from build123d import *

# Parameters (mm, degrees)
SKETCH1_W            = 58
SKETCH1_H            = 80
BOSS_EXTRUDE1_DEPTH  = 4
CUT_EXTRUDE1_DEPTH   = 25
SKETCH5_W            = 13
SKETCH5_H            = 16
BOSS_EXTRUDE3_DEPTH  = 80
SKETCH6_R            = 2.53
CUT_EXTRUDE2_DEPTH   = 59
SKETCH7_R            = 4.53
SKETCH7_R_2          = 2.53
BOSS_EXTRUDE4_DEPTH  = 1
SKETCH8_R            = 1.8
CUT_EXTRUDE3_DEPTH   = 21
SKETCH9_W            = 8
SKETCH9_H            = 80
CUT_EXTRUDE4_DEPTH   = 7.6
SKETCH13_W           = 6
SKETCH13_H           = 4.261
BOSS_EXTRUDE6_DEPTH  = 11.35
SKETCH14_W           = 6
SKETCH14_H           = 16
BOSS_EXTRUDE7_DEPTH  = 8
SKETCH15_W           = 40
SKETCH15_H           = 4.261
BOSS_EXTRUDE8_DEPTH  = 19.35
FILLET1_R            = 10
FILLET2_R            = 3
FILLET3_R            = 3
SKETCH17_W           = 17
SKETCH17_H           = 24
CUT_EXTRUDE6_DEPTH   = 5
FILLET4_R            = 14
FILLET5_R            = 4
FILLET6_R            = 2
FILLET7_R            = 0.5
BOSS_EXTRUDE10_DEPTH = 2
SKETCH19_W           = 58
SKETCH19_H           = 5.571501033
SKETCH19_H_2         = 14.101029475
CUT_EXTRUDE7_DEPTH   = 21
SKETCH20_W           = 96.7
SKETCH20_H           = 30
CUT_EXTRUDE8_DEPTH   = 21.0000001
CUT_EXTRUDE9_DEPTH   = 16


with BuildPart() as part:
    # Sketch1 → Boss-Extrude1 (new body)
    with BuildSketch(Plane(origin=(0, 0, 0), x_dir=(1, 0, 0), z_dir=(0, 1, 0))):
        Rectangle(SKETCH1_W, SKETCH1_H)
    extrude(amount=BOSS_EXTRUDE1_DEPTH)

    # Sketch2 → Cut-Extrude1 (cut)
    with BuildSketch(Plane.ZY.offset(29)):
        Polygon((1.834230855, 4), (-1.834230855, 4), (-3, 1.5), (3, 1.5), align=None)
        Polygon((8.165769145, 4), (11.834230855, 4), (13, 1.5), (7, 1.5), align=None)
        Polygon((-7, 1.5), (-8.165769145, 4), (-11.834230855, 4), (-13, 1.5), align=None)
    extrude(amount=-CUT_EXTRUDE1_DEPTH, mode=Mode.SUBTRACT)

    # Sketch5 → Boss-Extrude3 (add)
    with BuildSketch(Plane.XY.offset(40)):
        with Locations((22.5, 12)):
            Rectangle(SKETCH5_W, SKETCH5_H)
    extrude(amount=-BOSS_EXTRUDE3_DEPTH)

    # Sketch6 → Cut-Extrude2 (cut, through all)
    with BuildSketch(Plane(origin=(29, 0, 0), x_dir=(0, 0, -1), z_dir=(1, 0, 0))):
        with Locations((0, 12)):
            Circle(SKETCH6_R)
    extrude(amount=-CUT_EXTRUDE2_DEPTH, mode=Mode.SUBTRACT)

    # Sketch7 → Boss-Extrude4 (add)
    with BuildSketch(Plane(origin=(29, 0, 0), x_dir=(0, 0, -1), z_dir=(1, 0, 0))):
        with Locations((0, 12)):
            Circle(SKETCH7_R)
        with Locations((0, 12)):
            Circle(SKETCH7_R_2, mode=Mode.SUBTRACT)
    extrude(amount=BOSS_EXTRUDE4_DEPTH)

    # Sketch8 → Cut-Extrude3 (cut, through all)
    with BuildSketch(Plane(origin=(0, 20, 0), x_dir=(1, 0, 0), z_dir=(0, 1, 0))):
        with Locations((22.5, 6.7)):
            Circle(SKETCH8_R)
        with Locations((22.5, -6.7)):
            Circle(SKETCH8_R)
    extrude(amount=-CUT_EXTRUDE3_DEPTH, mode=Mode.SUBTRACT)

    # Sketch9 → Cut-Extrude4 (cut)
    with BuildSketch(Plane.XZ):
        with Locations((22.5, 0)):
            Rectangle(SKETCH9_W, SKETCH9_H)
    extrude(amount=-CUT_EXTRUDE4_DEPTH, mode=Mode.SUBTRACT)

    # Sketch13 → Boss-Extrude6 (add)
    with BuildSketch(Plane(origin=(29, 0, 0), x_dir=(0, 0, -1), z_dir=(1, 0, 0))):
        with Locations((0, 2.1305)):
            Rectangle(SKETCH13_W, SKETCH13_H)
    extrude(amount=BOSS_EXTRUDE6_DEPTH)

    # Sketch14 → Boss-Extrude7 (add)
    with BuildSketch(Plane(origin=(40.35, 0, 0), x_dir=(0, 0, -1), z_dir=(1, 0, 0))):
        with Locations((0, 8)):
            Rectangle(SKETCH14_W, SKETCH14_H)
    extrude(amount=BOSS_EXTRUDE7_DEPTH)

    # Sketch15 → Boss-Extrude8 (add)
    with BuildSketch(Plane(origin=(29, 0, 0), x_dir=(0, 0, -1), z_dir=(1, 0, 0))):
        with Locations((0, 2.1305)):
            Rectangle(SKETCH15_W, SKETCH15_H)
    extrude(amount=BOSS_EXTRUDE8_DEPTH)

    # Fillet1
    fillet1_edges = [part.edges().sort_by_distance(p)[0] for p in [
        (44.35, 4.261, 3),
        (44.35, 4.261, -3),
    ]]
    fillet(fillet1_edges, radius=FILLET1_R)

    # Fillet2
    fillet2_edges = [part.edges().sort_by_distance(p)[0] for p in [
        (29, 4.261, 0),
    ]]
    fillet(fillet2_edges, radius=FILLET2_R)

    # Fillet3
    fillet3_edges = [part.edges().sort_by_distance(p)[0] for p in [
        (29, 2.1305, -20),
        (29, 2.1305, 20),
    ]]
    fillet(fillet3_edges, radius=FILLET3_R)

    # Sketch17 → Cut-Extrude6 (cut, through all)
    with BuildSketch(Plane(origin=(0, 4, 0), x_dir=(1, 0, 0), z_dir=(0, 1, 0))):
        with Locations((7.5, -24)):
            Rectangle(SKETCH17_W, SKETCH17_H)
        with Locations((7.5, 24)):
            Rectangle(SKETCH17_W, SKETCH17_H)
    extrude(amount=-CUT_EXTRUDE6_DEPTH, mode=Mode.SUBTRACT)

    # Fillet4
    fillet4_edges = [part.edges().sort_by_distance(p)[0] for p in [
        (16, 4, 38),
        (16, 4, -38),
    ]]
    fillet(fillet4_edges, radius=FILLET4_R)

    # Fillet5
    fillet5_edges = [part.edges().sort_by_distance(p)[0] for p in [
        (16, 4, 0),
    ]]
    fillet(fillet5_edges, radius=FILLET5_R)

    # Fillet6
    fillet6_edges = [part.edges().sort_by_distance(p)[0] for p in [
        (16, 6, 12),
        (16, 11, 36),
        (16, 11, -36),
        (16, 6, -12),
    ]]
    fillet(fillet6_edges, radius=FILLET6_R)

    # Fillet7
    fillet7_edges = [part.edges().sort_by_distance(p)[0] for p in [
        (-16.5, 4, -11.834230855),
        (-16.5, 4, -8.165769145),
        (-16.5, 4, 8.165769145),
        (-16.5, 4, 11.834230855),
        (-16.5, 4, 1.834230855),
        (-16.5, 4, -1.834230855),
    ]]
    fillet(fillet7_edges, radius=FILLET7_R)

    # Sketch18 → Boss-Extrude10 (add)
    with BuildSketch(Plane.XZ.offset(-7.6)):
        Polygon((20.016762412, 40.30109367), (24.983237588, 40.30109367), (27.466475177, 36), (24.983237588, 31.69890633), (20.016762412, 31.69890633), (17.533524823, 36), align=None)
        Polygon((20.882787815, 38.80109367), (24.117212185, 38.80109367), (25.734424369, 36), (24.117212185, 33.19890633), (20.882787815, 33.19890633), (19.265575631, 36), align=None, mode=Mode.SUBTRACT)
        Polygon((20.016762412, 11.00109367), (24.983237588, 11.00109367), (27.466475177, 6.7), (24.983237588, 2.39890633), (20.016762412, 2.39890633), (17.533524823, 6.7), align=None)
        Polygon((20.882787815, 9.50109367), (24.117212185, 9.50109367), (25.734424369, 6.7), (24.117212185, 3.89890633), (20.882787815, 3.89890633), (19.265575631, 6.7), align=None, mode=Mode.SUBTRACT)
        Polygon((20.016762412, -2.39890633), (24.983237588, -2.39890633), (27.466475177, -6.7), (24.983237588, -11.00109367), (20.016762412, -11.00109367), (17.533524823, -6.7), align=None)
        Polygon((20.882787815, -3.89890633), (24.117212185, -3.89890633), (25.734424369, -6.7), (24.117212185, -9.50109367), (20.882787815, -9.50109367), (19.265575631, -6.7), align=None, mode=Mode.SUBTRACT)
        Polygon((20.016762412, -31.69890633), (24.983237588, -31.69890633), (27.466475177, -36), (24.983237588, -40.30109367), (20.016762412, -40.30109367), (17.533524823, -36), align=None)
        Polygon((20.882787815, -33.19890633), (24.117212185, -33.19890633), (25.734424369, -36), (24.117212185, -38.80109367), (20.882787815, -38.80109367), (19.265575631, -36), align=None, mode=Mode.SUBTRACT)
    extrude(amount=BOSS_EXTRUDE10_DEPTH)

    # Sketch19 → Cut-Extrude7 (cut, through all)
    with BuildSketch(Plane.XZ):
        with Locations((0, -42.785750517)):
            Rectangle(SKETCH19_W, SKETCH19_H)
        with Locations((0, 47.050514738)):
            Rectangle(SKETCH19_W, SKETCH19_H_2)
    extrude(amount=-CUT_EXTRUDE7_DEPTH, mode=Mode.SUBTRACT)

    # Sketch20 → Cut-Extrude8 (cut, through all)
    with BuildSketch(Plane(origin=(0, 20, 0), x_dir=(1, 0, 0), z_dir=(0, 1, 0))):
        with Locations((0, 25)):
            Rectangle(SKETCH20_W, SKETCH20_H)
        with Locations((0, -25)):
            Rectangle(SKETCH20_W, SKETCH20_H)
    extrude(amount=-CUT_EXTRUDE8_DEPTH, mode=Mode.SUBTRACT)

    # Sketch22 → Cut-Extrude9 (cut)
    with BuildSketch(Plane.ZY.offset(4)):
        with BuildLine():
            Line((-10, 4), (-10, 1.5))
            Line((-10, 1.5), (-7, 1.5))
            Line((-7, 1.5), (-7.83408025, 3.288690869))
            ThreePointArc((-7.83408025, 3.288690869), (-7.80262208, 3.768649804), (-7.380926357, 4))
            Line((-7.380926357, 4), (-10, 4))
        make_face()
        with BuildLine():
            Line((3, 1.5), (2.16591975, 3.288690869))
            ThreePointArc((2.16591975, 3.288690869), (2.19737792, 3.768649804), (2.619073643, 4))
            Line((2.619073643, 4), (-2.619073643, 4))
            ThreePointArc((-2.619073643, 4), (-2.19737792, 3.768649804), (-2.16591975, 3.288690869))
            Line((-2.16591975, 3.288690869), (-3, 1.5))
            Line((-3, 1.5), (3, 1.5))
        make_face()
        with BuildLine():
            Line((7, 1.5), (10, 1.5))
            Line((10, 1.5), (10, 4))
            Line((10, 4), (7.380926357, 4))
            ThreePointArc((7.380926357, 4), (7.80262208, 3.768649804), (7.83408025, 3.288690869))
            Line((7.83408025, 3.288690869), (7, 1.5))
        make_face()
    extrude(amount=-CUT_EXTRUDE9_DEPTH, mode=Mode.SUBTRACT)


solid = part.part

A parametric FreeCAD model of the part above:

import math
import FreeCAD as App
import Part
import Sketcher

V = App.Vector
Q = App.Units.Quantity


def edges_at(feature, points):
    """Names of the edges that pass closest to the given points."""
    edges = feature.Shape.Edges
    near = lambda p: min(range(len(edges)), key=lambda i: edges[i].distToShape(Part.Vertex(*p))[0])
    return sorted({f"Edge{near(p) + 1}" for p in points})

doc = App.newDocument("Part")
body = doc.addObject("PartDesign::Body", "Body")

# Sketch on XZ plane
sketch1 = doc.addObject("Sketcher::SketchObject", "Sketch")
body.addObject(sketch1)
sketch1.AttachmentSupport = (doc.XZ_Plane, [""])
sketch1.MapMode = "FlatFace"
sketch1.addGeometry(Part.LineSegment(V(-29, -40, 0), V(-29, 40, 0)), False)
sketch1.addGeometry(Part.LineSegment(V(-29, 40, 0), V(29, 40, 0)), False)
sketch1.addGeometry(Part.LineSegment(V(29, 40, 0), V(29, -40, 0)), False)
sketch1.addGeometry(Part.LineSegment(V(29, -40, 0), V(-29, -40, 0)), False)
sketch1.addConstraint(Sketcher.Constraint("Coincident", 0, 2, 1, 1))
sketch1.addConstraint(Sketcher.Constraint("Coincident", 1, 2, 2, 1))
sketch1.addConstraint(Sketcher.Constraint("Coincident", 2, 2, 3, 1))
sketch1.addConstraint(Sketcher.Constraint("Coincident", 3, 2, 0, 1))
sketch1.addConstraint(Sketcher.Constraint("Vertical", 0))
sketch1.addConstraint(Sketcher.Constraint("Horizontal", 1))
sketch1.addConstraint(Sketcher.Constraint("Vertical", 2))
sketch1.addConstraint(Sketcher.Constraint("Horizontal", 3))
sketch1.addConstraint(Sketcher.Constraint("Symmetric", 0, 2, 2, 2, -1, 1))
sketch1.addConstraint(Sketcher.Constraint("DistanceX", 1, 1, 1, 2, Q("58 mm")))
sketch1.addConstraint(Sketcher.Constraint("DistanceY", 0, 1, 0, 2, Q("80 mm")))
pad1 = doc.addObject("PartDesign::Pad", "Pad")
body.addObject(pad1)
pad1.Profile = sketch1
pad1.Length = 4
pad1.Reversed = True

# Sketch on YZ plane
sketch2 = doc.addObject("Sketcher::SketchObject", "Sketch001")
body.addObject(sketch2)
sketch2.AttachmentSupport = (doc.YZ_Plane, [""])
sketch2.MapMode = "FlatFace"
sketch2.AttachmentOffset = App.Placement(V(0, 0, -29), App.Rotation())
sketch2.addGeometry(Part.LineSegment(V(4, 1.8, 0), V(4, -1.8, 0)), False)
sketch2.addGeometry(Part.LineSegment(V(4, -1.8, 0), V(1.5, -3, 0)), False)
sketch2.addGeometry(Part.LineSegment(V(1.5, -3, 0), V(1.5, 3, 0)), False)
sketch2.addGeometry(Part.LineSegment(V(1.5, 3, 0), V(4, 1.8, 0)), False)
sketch2.addGeometry(Part.LineSegment(V(4, 11.8, 0), V(4, 8.2, 0)), False)
sketch2.addGeometry(Part.LineSegment(V(4, 8.2, 0), V(1.5, 7, 0)), False)
sketch2.addGeometry(Part.LineSegment(V(1.5, 7, 0), V(1.5, 13, 0)), False)
sketch2.addGeometry(Part.LineSegment(V(1.5, 13, 0), V(4, 11.8, 0)), False)
sketch2.addGeometry(Part.LineSegment(V(1.5, -7, 0), V(4, -8.2, 0)), False)
sketch2.addGeometry(Part.LineSegment(V(4, -8.2, 0), V(4, -11.8, 0)), False)
sketch2.addGeometry(Part.LineSegment(V(4, -11.8, 0), V(1.5, -13, 0)), False)
sketch2.addGeometry(Part.LineSegment(V(1.5, -13, 0), V(1.5, -7, 0)), False)
sketch2.addConstraint(Sketcher.Constraint("Coincident", 0, 2, 1, 1))
sketch2.addConstraint(Sketcher.Constraint("Coincident", 1, 2, 2, 1))
sketch2.addConstraint(Sketcher.Constraint("Coincident", 2, 2, 3, 1))
sketch2.addConstraint(Sketcher.Constraint("Coincident", 3, 2, 0, 1))
sketch2.addConstraint(Sketcher.Constraint("Coincident", 4, 2, 5, 1))
sketch2.addConstraint(Sketcher.Constraint("Coincident", 5, 2, 6, 1))
sketch2.addConstraint(Sketcher.Constraint("Coincident", 6, 2, 7, 1))
sketch2.addConstraint(Sketcher.Constraint("Coincident", 7, 2, 4, 1))
sketch2.addConstraint(Sketcher.Constraint("Coincident", 8, 2, 9, 1))
sketch2.addConstraint(Sketcher.Constraint("Coincident", 9, 2, 10, 1))
sketch2.addConstraint(Sketcher.Constraint("Coincident", 10, 2, 11, 1))
sketch2.addConstraint(Sketcher.Constraint("Coincident", 11, 2, 8, 1))
sketch2.addConstraint(Sketcher.Constraint("Vertical", 0))
sketch2.addConstraint(Sketcher.Constraint("Vertical", 2))
sketch2.addConstraint(Sketcher.Constraint("Vertical", 4))
sketch2.addConstraint(Sketcher.Constraint("Vertical", 6))
sketch2.addConstraint(Sketcher.Constraint("Vertical", 9))
sketch2.addConstraint(Sketcher.Constraint("Vertical", 11))
sketch2.addConstraint(Sketcher.Constraint("Symmetric", 4, 2, 8, 2, -1))
sketch2.addConstraint(Sketcher.Constraint("Symmetric", 6, 2, 10, 2, -1))
sketch2.addConstraint(Sketcher.Constraint("Parallel", 1, 5))
sketch2.addConstraint(Sketcher.Constraint("Parallel", 3, 7))
sketch2.addConstraint(Sketcher.Constraint("Parallel", 7, 8))
sketch2.addConstraint(Sketcher.Constraint("Parallel", 5, 10))
sketch2.addConstraint(Sketcher.Constraint("Vertical", 3, 2, 4, 2))
sketch2.addConstraint(Sketcher.Constraint("Vertical", 2, 2, 5, 2))
sketch2.addConstraint(Sketcher.Constraint("Equal", 0, 4))
sketch2.addConstraint(Sketcher.Constraint("Equal", 4, 9))
sketch2.addConstraint(Sketcher.Constraint("DistanceY", 2, 1, 2, 2, Q("6 mm")))
sketch2.addConstraint(Sketcher.Constraint("Angle", 1, Q("-155 deg")))
sketch2.addConstraint(Sketcher.Constraint("DistanceX", -1, 1, 0, 2, Q("4 mm")))
sketch2.addConstraint(Sketcher.Constraint("DistanceY", 1, 2, -1, 1, Q("3 mm")))
sketch2.addConstraint(Sketcher.Constraint("DistanceY", -1, 1, 5, 2, Q("7 mm")))
sketch2.addConstraint(Sketcher.Constraint("DistanceX", -1, 1, 1, 2, Q("1.5 mm")))
pocket1 = doc.addObject("PartDesign::Pocket", "Pocket")
body.addObject(pocket1)
pocket1.Profile = sketch2
pocket1.Length = 25
pocket1.Reversed = True

# Sketch on XY plane
sketch3 = doc.addObject("Sketcher::SketchObject", "Sketch002")
body.addObject(sketch3)
sketch3.AttachmentSupport = (doc.XY_Plane, [""])
sketch3.MapMode = "FlatFace"
sketch3.AttachmentOffset = App.Placement(V(0, 0, 40), App.Rotation())
sketch3.addGeometry(Part.LineSegment(V(16, 20, 0), V(16, 4, 0)), False)
sketch3.addGeometry(Part.LineSegment(V(16, 4, 0), V(29, 4, 0)), False)
sketch3.addGeometry(Part.LineSegment(V(29, 4, 0), V(29, 20, 0)), False)
sketch3.addGeometry(Part.LineSegment(V(29, 20, 0), V(16, 20, 0)), False)
sketch3.addConstraint(Sketcher.Constraint("Coincident", 0, 2, 1, 1))
sketch3.addConstraint(Sketcher.Constraint("Coincident", 1, 2, 2, 1))
sketch3.addConstraint(Sketcher.Constraint("Coincident", 2, 2, 3, 1))
sketch3.addConstraint(Sketcher.Constraint("Coincident", 3, 2, 0, 1))
sketch3.addConstraint(Sketcher.Constraint("Vertical", 0))
sketch3.addConstraint(Sketcher.Constraint("Horizontal", 1))
sketch3.addConstraint(Sketcher.Constraint("Vertical", 2))
sketch3.addConstraint(Sketcher.Constraint("Horizontal", 3))
sketch3.addConstraint(Sketcher.Constraint("DistanceX", 1, 1, 1, 2, Q("13 mm")))
sketch3.addConstraint(Sketcher.Constraint("DistanceY", 0, 2, 0, 1, Q("16 mm")))
sketch3.addConstraint(Sketcher.Constraint("DistanceX", -1, 1, 0, 2, Q("16 mm")))
sketch3.addConstraint(Sketcher.Constraint("DistanceY", -1, 1, 0, 2, Q("4 mm")))
pad2 = doc.addObject("PartDesign::Pad", "Pad001")
body.addObject(pad2)
pad2.Profile = sketch3
pad2.Length = 80
pad2.Reversed = True

# Sketch on YZ plane
sketch4 = doc.addObject("Sketcher::SketchObject", "Sketch003")
body.addObject(sketch4)
sketch4.AttachmentSupport = (doc.YZ_Plane, [""])
sketch4.MapMode = "FlatFace"
sketch4.AttachmentOffset = App.Placement(V(0, 0, 29), App.Rotation())
sketch4.addGeometry(Part.Circle(V(12, 0, 0), V(0, 0, 1), 2.5), False)
sketch4.addConstraint(Sketcher.Constraint("PointOnObject", 0, 3, -1))
sketch4.addConstraint(Sketcher.Constraint("Diameter", 0, Q("5.06 mm")))
sketch4.addConstraint(Sketcher.Constraint("DistanceX", -1, 1, 0, 3, Q("12 mm")))
pocket2 = doc.addObject("PartDesign::Pocket", "Pocket001")
body.addObject(pocket2)
pocket2.Profile = sketch4
pocket2.Type = "ThroughAll"

# Sketch on YZ plane
sketch5 = doc.addObject("Sketcher::SketchObject", "Sketch004")
body.addObject(sketch5)
sketch5.AttachmentSupport = (doc.YZ_Plane, [""])
sketch5.MapMode = "FlatFace"
sketch5.AttachmentOffset = App.Placement(V(0, 0, 29), App.Rotation())
sketch5.addGeometry(Part.Circle(V(12, 0, 0), V(0, 0, 1), 4.5), False)
sketch5.addGeometry(Part.Circle(V(12, 0, 0), V(0, 0, 1), 2.5), False)
sketch5.addConstraint(Sketcher.Constraint("Coincident", 1, 3, 0, 3))
sketch5.addConstraint(Sketcher.Constraint("PointOnObject", 0, 3, -1))
sketch5.addConstraint(Sketcher.Constraint("Diameter", 0, Q("9.06 mm")))
sketch5.addConstraint(Sketcher.Constraint("Diameter", 1, Q("5.06 mm")))
sketch5.addConstraint(Sketcher.Constraint("DistanceX", -1, 1, 0, 3, Q("12 mm")))
pad3 = doc.addObject("PartDesign::Pad", "Pad002")
body.addObject(pad3)
pad3.Profile = sketch5
pad3.Length = 1

# Sketch on XZ plane
sketch6 = doc.addObject("Sketcher::SketchObject", "Sketch005")
body.addObject(sketch6)
sketch6.AttachmentSupport = (doc.XZ_Plane, [""])
sketch6.MapMode = "FlatFace"
sketch6.AttachmentOffset = App.Placement(V(0, 0, -20), App.Rotation())
sketch6.addGeometry(Part.Circle(V(22.5, -6.7, 0), V(0, 0, 1), 1.8), False)
sketch6.addGeometry(Part.Circle(V(22.5, 6.7, 0), V(0, 0, 1), 1.8), False)
sketch6.addConstraint(Sketcher.Constraint("Equal", 0, 1))
sketch6.addConstraint(Sketcher.Constraint("Symmetric", 0, 3, 1, 3, -1))
sketch6.addConstraint(Sketcher.Constraint("Diameter", 0, Q("3.6 mm")))
sketch6.addConstraint(Sketcher.Constraint("DistanceX", -1, 1, 0, 3, Q("22.5 mm")))
sketch6.addConstraint(Sketcher.Constraint("DistanceY", 0, 3, -1, 1, Q("6.7 mm")))
pocket3 = doc.addObject("PartDesign::Pocket", "Pocket002")
body.addObject(pocket3)
pocket3.Profile = sketch6
pocket3.Type = "ThroughAll"
pocket3.Reversed = True

# Sketch on XZ plane
sketch7 = doc.addObject("Sketcher::SketchObject", "Sketch006")
body.addObject(sketch7)
sketch7.AttachmentSupport = (doc.XZ_Plane, [""])
sketch7.MapMode = "FlatFace"
sketch7.addGeometry(Part.LineSegment(V(18, 40, 0), V(18, -40, 0)), False)
sketch7.addGeometry(Part.LineSegment(V(18, -40, 0), V(26, -40, 0)), False)
sketch7.addGeometry(Part.LineSegment(V(26, -40, 0), V(26, 40, 0)), False)
sketch7.addGeometry(Part.LineSegment(V(26, 40, 0), V(18, 40, 0)), False)
sketch7.addConstraint(Sketcher.Constraint("Coincident", 0, 2, 1, 1))
sketch7.addConstraint(Sketcher.Constraint("Coincident", 1, 2, 2, 1))
sketch7.addConstraint(Sketcher.Constraint("Coincident", 2, 2, 3, 1))
sketch7.addConstraint(Sketcher.Constraint("Coincident", 3, 2, 0, 1))
sketch7.addConstraint(Sketcher.Constraint("Vertical", 0))
sketch7.addConstraint(Sketcher.Constraint("Horizontal", 1))
sketch7.addConstraint(Sketcher.Constraint("Vertical", 2))
sketch7.addConstraint(Sketcher.Constraint("Horizontal", 3))
sketch7.addConstraint(Sketcher.Constraint("DistanceX", 1, 1, 1, 2, Q("8 mm")))
sketch7.addConstraint(Sketcher.Constraint("DistanceY", 0, 2, 0, 1, Q("80 mm")))
sketch7.addConstraint(Sketcher.Constraint("DistanceY", 0, 2, -1, 1, Q("40 mm")))
sketch7.addConstraint(Sketcher.Constraint("DistanceX", -1, 1, 0, 2, Q("18.5 mm")))
pocket4 = doc.addObject("PartDesign::Pocket", "Pocket003")
body.addObject(pocket4)
pocket4.Profile = sketch7
pocket4.Length = 7.6

# Sketch on YZ plane
sketch8 = doc.addObject("Sketcher::SketchObject", "Sketch007")
body.addObject(sketch8)
sketch8.AttachmentSupport = (doc.YZ_Plane, [""])
sketch8.MapMode = "FlatFace"
sketch8.AttachmentOffset = App.Placement(V(0, 0, 29), App.Rotation())
sketch8.addGeometry(Part.LineSegment(V(4.3, 3, 0), V(0, 3, 0)), False)
sketch8.addGeometry(Part.LineSegment(V(0, 3, 0), V(0, -3, 0)), False)
sketch8.addGeometry(Part.LineSegment(V(0, -3, 0), V(4.3, -3, 0)), False)
sketch8.addGeometry(Part.LineSegment(V(4.3, -3, 0), V(4.3, 3, 0)), False)
sketch8.addConstraint(Sketcher.Constraint("Coincident", 0, 2, 1, 1))
sketch8.addConstraint(Sketcher.Constraint("Coincident", 1, 2, 2, 1))
sketch8.addConstraint(Sketcher.Constraint("Coincident", 2, 2, 3, 1))
sketch8.addConstraint(Sketcher.Constraint("Coincident", 3, 2, 0, 1))
sketch8.addConstraint(Sketcher.Constraint("Horizontal", 0))
sketch8.addConstraint(Sketcher.Constraint("Vertical", 1))
sketch8.addConstraint(Sketcher.Constraint("Horizontal", 2))
sketch8.addConstraint(Sketcher.Constraint("Vertical", 3))
sketch8.addConstraint(Sketcher.Constraint("Symmetric", 0, 2, 1, 2, -1, 1))
sketch8.addConstraint(Sketcher.Constraint("DistanceY", 1, 2, 1, 1, Q("6 mm")))
sketch8.addConstraint(Sketcher.Constraint("DistanceX", 0, 2, 0, 1, Q("4.261 mm")))
pad4 = doc.addObject("PartDesign::Pad", "Pad003")
body.addObject(pad4)
pad4.Profile = sketch8
pad4.Length = 11.35

# Sketch on YZ plane
sketch9 = doc.addObject("Sketcher::SketchObject", "Sketch008")
body.addObject(sketch9)
sketch9.AttachmentSupport = (doc.YZ_Plane, [""])
sketch9.MapMode = "FlatFace"
sketch9.AttachmentOffset = App.Placement(V(0, 0, 40.35), App.Rotation())
sketch9.addGeometry(Part.LineSegment(V(16, 3, 0), V(0, 3, 0)), False)
sketch9.addGeometry(Part.LineSegment(V(0, 3, 0), V(0, -3, 0)), False)
sketch9.addGeometry(Part.LineSegment(V(0, -3, 0), V(16, -3, 0)), False)
sketch9.addGeometry(Part.LineSegment(V(16, -3, 0), V(16, 3, 0)), False)
sketch9.addConstraint(Sketcher.Constraint("Coincident", 0, 2, 1, 1))
sketch9.addConstraint(Sketcher.Constraint("Coincident", 1, 2, 2, 1))
sketch9.addConstraint(Sketcher.Constraint("Coincident", 2, 2, 3, 1))
sketch9.addConstraint(Sketcher.Constraint("Coincident", 3, 2, 0, 1))
sketch9.addConstraint(Sketcher.Constraint("Horizontal", 0))
sketch9.addConstraint(Sketcher.Constraint("Vertical", 1))
sketch9.addConstraint(Sketcher.Constraint("Horizontal", 2))
sketch9.addConstraint(Sketcher.Constraint("Vertical", 3))
sketch9.addConstraint(Sketcher.Constraint("Symmetric", 0, 2, 1, 2, -1, 1))
sketch9.addConstraint(Sketcher.Constraint("DistanceX", 0, 2, 0, 1, Q("16 mm")))
sketch9.addConstraint(Sketcher.Constraint("DistanceY", 1, 2, 1, 1, Q("6 mm")))
pad5 = doc.addObject("PartDesign::Pad", "Pad004")
body.addObject(pad5)
pad5.Profile = sketch9
pad5.Length = 8

# Sketch on YZ plane
sketch10 = doc.addObject("Sketcher::SketchObject", "Sketch009")
body.addObject(sketch10)
sketch10.AttachmentSupport = (doc.YZ_Plane, [""])
sketch10.MapMode = "FlatFace"
sketch10.AttachmentOffset = App.Placement(V(0, 0, 29), App.Rotation())
sketch10.addGeometry(Part.LineSegment(V(4.3, 20, 0), V(0, 20, 0)), False)
sketch10.addGeometry(Part.LineSegment(V(0, 20, 0), V(0, -20, 0)), False)
sketch10.addGeometry(Part.LineSegment(V(0, -20, 0), V(4.3, -20, 0)), False)
sketch10.addGeometry(Part.LineSegment(V(4.3, -20, 0), V(4.3, 20, 0)), False)
sketch10.addConstraint(Sketcher.Constraint("Coincident", 0, 2, 1, 1))
sketch10.addConstraint(Sketcher.Constraint("Coincident", 1, 2, 2, 1))
sketch10.addConstraint(Sketcher.Constraint("Coincident", 2, 2, 3, 1))
sketch10.addConstraint(Sketcher.Constraint("Coincident", 3, 2, 0, 1))
sketch10.addConstraint(Sketcher.Constraint("Horizontal", 0))
sketch10.addConstraint(Sketcher.Constraint("Vertical", 1))
sketch10.addConstraint(Sketcher.Constraint("Horizontal", 2))
sketch10.addConstraint(Sketcher.Constraint("Vertical", 3))
sketch10.addConstraint(Sketcher.Constraint("Symmetric", 0, 2, 1, 2, -1, 1))
sketch10.addConstraint(Sketcher.Constraint("DistanceY", 1, 2, 1, 1, Q("40 mm")))
sketch10.addConstraint(Sketcher.Constraint("DistanceX", 0, 2, 0, 1, Q("4.261 mm")))
pad6 = doc.addObject("PartDesign::Pad", "Pad005")
body.addObject(pad6)
pad6.Profile = sketch10
pad6.Length = 19.35
doc.recompute()

fillet = doc.addObject("PartDesign::Fillet", "Fillet")
body.addObject(fillet)
fillet.Base = (pad6, edges_at(pad6, [(44.35, 4.261, 3), (44.35, 4.261, -3)]))
fillet.Radius = 10
doc.recompute()

fillet2 = doc.addObject("PartDesign::Fillet", "Fillet001")
body.addObject(fillet2)
fillet2.Base = (fillet, edges_at(fillet, [(29, 4.261, 0)]))
fillet2.Radius = 3
doc.recompute()

fillet3 = doc.addObject("PartDesign::Fillet", "Fillet002")
body.addObject(fillet3)
fillet3.Base = (fillet2, edges_at(fillet2, [(29, 3.631, -20), (29, 3.631, 20)]))
fillet3.Radius = 3

# Sketch on XZ plane
sketch11 = doc.addObject("Sketcher::SketchObject", "Sketch010")
body.addObject(sketch11)
sketch11.AttachmentSupport = (doc.XZ_Plane, [""])
sketch11.MapMode = "FlatFace"
sketch11.AttachmentOffset = App.Placement(V(0, 0, -4), App.Rotation())
sketch11.addGeometry(Part.LineSegment(V(-1, 12, 0), V(-1, 36, 0)), False)
sketch11.addGeometry(Part.LineSegment(V(-1, 36, 0), V(16, 36, 0)), False)
sketch11.addGeometry(Part.LineSegment(V(16, 36, 0), V(16, 12, 0)), False)
sketch11.addGeometry(Part.LineSegment(V(16, 12, 0), V(-1, 12, 0)), False)
sketch11.addGeometry(Part.LineSegment(V(-1, -36, 0), V(-1, -12, 0)), False)
sketch11.addGeometry(Part.LineSegment(V(-1, -12, 0), V(16, -12, 0)), False)
sketch11.addGeometry(Part.LineSegment(V(16, -12, 0), V(16, -36, 0)), False)
sketch11.addGeometry(Part.LineSegment(V(16, -36, 0), V(-1, -36, 0)), False)
sketch11.addConstraint(Sketcher.Constraint("Coincident", 0, 2, 1, 1))
sketch11.addConstraint(Sketcher.Constraint("Coincident", 1, 2, 2, 1))
sketch11.addConstraint(Sketcher.Constraint("Coincident", 2, 2, 3, 1))
sketch11.addConstraint(Sketcher.Constraint("Coincident", 3, 2, 0, 1))
sketch11.addConstraint(Sketcher.Constraint("Coincident", 4, 2, 5, 1))
sketch11.addConstraint(Sketcher.Constraint("Coincident", 5, 2, 6, 1))
sketch11.addConstraint(Sketcher.Constraint("Coincident", 6, 2, 7, 1))
sketch11.addConstraint(Sketcher.Constraint("Coincident", 7, 2, 4, 1))
sketch11.addConstraint(Sketcher.Constraint("Vertical", 0))
sketch11.addConstraint(Sketcher.Constraint("Horizontal", 1))
sketch11.addConstraint(Sketcher.Constraint("Vertical", 2))
sketch11.addConstraint(Sketcher.Constraint("Horizontal", 3))
sketch11.addConstraint(Sketcher.Constraint("Vertical", 4))
sketch11.addConstraint(Sketcher.Constraint("Horizontal", 5))
sketch11.addConstraint(Sketcher.Constraint("Vertical", 6))
sketch11.addConstraint(Sketcher.Constraint("Horizontal", 7))
sketch11.addConstraint(Sketcher.Constraint("Symmetric", 3, 2, 4, 2, -1))
sketch11.addConstraint(Sketcher.Constraint("Symmetric", 1, 2, 6, 2, -1))
sketch11.addConstraint(Sketcher.Constraint("DistanceX", 1, 1, 1, 2, Q("17 mm")))
sketch11.addConstraint(Sketcher.Constraint("DistanceY", 0, 1, 0, 2, Q("24 mm")))
sketch11.addConstraint(Sketcher.Constraint("DistanceX", 0, 2, -1, 1, Q("1 mm")))
sketch11.addConstraint(Sketcher.Constraint("DistanceY", -1, 1, 0, 2, Q("36 mm")))
pocket5 = doc.addObject("PartDesign::Pocket", "Pocket004")
body.addObject(pocket5)
pocket5.Profile = sketch11
pocket5.Type = "ThroughAll"
pocket5.Reversed = True
doc.recompute()

fillet4 = doc.addObject("PartDesign::Fillet", "Fillet003")
body.addObject(fillet4)
fillet4.Base = (pocket5, edges_at(pocket5, [(16, 4, 38), (16, 4, -38)]))
fillet4.Radius = 14
doc.recompute()

fillet5 = doc.addObject("PartDesign::Fillet", "Fillet004")
body.addObject(fillet5)
fillet5.Base = (fillet4, edges_at(fillet4, [(16, 4, 0)]))
fillet5.Radius = 4
doc.recompute()

fillet6 = doc.addObject("PartDesign::Fillet", "Fillet005")
body.addObject(fillet6)
fillet6.Base = (fillet5, edges_at(fillet5, [
    (16, 4, 12),
    (16, 9, 36),
    (16, 9, -36),
    (16, 4, -12),
]))
fillet6.Radius = 2
doc.recompute()

fillet7 = doc.addObject("PartDesign::Fillet", "Fillet006")
body.addObject(fillet7)
fillet7.Base = (fillet6, edges_at(fillet6, [
    (-16.5, 4, -11.834),
    (-16.5, 4, -8.166),
    (-16.5, 4, 8.166),
    (-16.5, 4, 11.834),
    (-16.5, 4, 1.834),
    (-16.5, 4, -1.834),
]))
fillet7.Radius = 0.5

# Sketch on XZ plane
sketch12 = doc.addObject("Sketcher::SketchObject", "Sketch011")
body.addObject(sketch12)
sketch12.AttachmentSupport = (doc.XZ_Plane, [""])
sketch12.MapMode = "FlatFace"
sketch12.AttachmentOffset = App.Placement(V(0, 0, -7.6), App.Rotation())
sketch12.addGeometry(Part.LineSegment(V(25, 40.3, 0), V(20, 40.3, 0)), False)
sketch12.addGeometry(Part.LineSegment(V(20, 40.3, 0), V(17.5, 36, 0)), False)
sketch12.addGeometry(Part.LineSegment(V(17.5, 36, 0), V(20, 31.7, 0)), False)
sketch12.addGeometry(Part.LineSegment(V(20, 31.7, 0), V(25, 31.7, 0)), False)
sketch12.addGeometry(Part.LineSegment(V(25, 31.7, 0), V(27.5, 36, 0)), False)
sketch12.addGeometry(Part.LineSegment(V(27.5, 36, 0), V(25, 40.3, 0)), False)
sketch12.addGeometry(Part.LineSegment(V(20.9, 38.8, 0), V(24.1, 38.8, 0)), False)
sketch12.addGeometry(Part.LineSegment(V(24.1, 38.8, 0), V(25.7, 36, 0)), False)
sketch12.addGeometry(Part.LineSegment(V(25.7, 36, 0), V(24.1, 33.2, 0)), False)
sketch12.addGeometry(Part.LineSegment(V(24.1, 33.2, 0), V(20.9, 33.2, 0)), False)
sketch12.addGeometry(Part.LineSegment(V(20.9, 33.2, 0), V(19.3, 36, 0)), False)
sketch12.addGeometry(Part.LineSegment(V(19.3, 36, 0), V(20.9, 38.8, 0)), False)
sketch12.addGeometry(Part.LineSegment(V(25, 11, 0), V(20, 11, 0)), False)
sketch12.addGeometry(Part.LineSegment(V(20, 11, 0), V(17.5, 6.7, 0)), False)
sketch12.addGeometry(Part.LineSegment(V(17.5, 6.7, 0), V(20, 2.4, 0)), False)
sketch12.addGeometry(Part.LineSegment(V(20, 2.4, 0), V(25, 2.4, 0)), False)
sketch12.addGeometry(Part.LineSegment(V(25, 2.4, 0), V(27.5, 6.7, 0)), False)
sketch12.addGeometry(Part.LineSegment(V(27.5, 6.7, 0), V(25, 11, 0)), False)
sketch12.addGeometry(Part.LineSegment(V(20.9, 9.5, 0), V(24.1, 9.5, 0)), False)
sketch12.addGeometry(Part.LineSegment(V(24.1, 9.5, 0), V(25.7, 6.7, 0)), False)
sketch12.addGeometry(Part.LineSegment(V(25.7, 6.7, 0), V(24.1, 3.9, 0)), False)
sketch12.addGeometry(Part.LineSegment(V(24.1, 3.9, 0), V(20.9, 3.9, 0)), False)
sketch12.addGeometry(Part.LineSegment(V(20.9, 3.9, 0), V(19.3, 6.7, 0)), False)
sketch12.addGeometry(Part.LineSegment(V(19.3, 6.7, 0), V(20.9, 9.5, 0)), False)
sketch12.addGeometry(Part.LineSegment(V(25, -2.4, 0), V(20, -2.4, 0)), False)
sketch12.addGeometry(Part.LineSegment(V(20, -2.4, 0), V(17.5, -6.7, 0)), False)
sketch12.addGeometry(Part.LineSegment(V(17.5, -6.7, 0), V(20, -11, 0)), False)
sketch12.addGeometry(Part.LineSegment(V(20, -11, 0), V(25, -11, 0)), False)
sketch12.addGeometry(Part.LineSegment(V(25, -11, 0), V(27.5, -6.7, 0)), False)
sketch12.addGeometry(Part.LineSegment(V(27.5, -6.7, 0), V(25, -2.4, 0)), False)
sketch12.addGeometry(Part.LineSegment(V(20.9, -3.9, 0), V(24.1, -3.9, 0)), False)
sketch12.addGeometry(Part.LineSegment(V(24.1, -3.9, 0), V(25.7, -6.7, 0)), False)
sketch12.addGeometry(Part.LineSegment(V(25.7, -6.7, 0), V(24.1, -9.5, 0)), False)
sketch12.addGeometry(Part.LineSegment(V(24.1, -9.5, 0), V(20.9, -9.5, 0)), False)
sketch12.addGeometry(Part.LineSegment(V(20.9, -9.5, 0), V(19.3, -6.7, 0)), False)
sketch12.addGeometry(Part.LineSegment(V(19.3, -6.7, 0), V(20.9, -3.9, 0)), False)
sketch12.addGeometry(Part.LineSegment(V(25, -31.7, 0), V(20, -31.7, 0)), False)
sketch12.addGeometry(Part.LineSegment(V(20, -31.7, 0), V(17.5, -36, 0)), False)
sketch12.addGeometry(Part.LineSegment(V(17.5, -36, 0), V(20, -40.3, 0)), False)
sketch12.addGeometry(Part.LineSegment(V(20, -40.3, 0), V(25, -40.3, 0)), False)
sketch12.addGeometry(Part.LineSegment(V(25, -40.3, 0), V(27.5, -36, 0)), False)
sketch12.addGeometry(Part.LineSegment(V(27.5, -36, 0), V(25, -31.7, 0)), False)
sketch12.addGeometry(Part.LineSegment(V(20.9, -33.2, 0), V(24.1, -33.2, 0)), False)
sketch12.addGeometry(Part.LineSegment(V(24.1, -33.2, 0), V(25.7, -36, 0)), False)
sketch12.addGeometry(Part.LineSegment(V(25.7, -36, 0), V(24.1, -38.8, 0)), False)
sketch12.addGeometry(Part.LineSegment(V(24.1, -38.8, 0), V(20.9, -38.8, 0)), False)
sketch12.addGeometry(Part.LineSegment(V(20.9, -38.8, 0), V(19.3, -36, 0)), False)
sketch12.addGeometry(Part.LineSegment(V(19.3, -36, 0), V(20.9, -33.2, 0)), False)
sketch12.addConstraint(Sketcher.Constraint("Coincident", 0, 2, 1, 1))
sketch12.addConstraint(Sketcher.Constraint("Coincident", 1, 2, 2, 1))
sketch12.addConstraint(Sketcher.Constraint("Coincident", 2, 2, 3, 1))
sketch12.addConstraint(Sketcher.Constraint("Coincident", 3, 2, 4, 1))
sketch12.addConstraint(Sketcher.Constraint("Coincident", 4, 2, 5, 1))
sketch12.addConstraint(Sketcher.Constraint("Coincident", 5, 2, 0, 1))
sketch12.addConstraint(Sketcher.Constraint("Coincident", 6, 2, 7, 1))
sketch12.addConstraint(Sketcher.Constraint("Coincident", 7, 2, 8, 1))
sketch12.addConstraint(Sketcher.Constraint("Coincident", 8, 2, 9, 1))
sketch12.addConstraint(Sketcher.Constraint("Coincident", 9, 2, 10, 1))
sketch12.addConstraint(Sketcher.Constraint("Coincident", 10, 2, 11, 1))
sketch12.addConstraint(Sketcher.Constraint("Coincident", 11, 2, 6, 1))
sketch12.addConstraint(Sketcher.Constraint("Coincident", 12, 2, 13, 1))
sketch12.addConstraint(Sketcher.Constraint("Coincident", 13, 2, 14, 1))
sketch12.addConstraint(Sketcher.Constraint("Coincident", 14, 2, 15, 1))
sketch12.addConstraint(Sketcher.Constraint("Coincident", 15, 2, 16, 1))
sketch12.addConstraint(Sketcher.Constraint("Coincident", 16, 2, 17, 1))
sketch12.addConstraint(Sketcher.Constraint("Coincident", 17, 2, 12, 1))
sketch12.addConstraint(Sketcher.Constraint("Coincident", 18, 2, 19, 1))
sketch12.addConstraint(Sketcher.Constraint("Coincident", 19, 2, 20, 1))
sketch12.addConstraint(Sketcher.Constraint("Coincident", 20, 2, 21, 1))
sketch12.addConstraint(Sketcher.Constraint("Coincident", 21, 2, 22, 1))
sketch12.addConstraint(Sketcher.Constraint("Coincident", 22, 2, 23, 1))
sketch12.addConstraint(Sketcher.Constraint("Coincident", 23, 2, 18, 1))
sketch12.addConstraint(Sketcher.Constraint("Coincident", 24, 2, 25, 1))
sketch12.addConstraint(Sketcher.Constraint("Coincident", 25, 2, 26, 1))
sketch12.addConstraint(Sketcher.Constraint("Coincident", 26, 2, 27, 1))
sketch12.addConstraint(Sketcher.Constraint("Coincident", 27, 2, 28, 1))
sketch12.addConstraint(Sketcher.Constraint("Coincident", 28, 2, 29, 1))
sketch12.addConstraint(Sketcher.Constraint("Coincident", 29, 2, 24, 1))
sketch12.addConstraint(Sketcher.Constraint("Coincident", 30, 2, 31, 1))
sketch12.addConstraint(Sketcher.Constraint("Coincident", 31, 2, 32, 1))
sketch12.addConstraint(Sketcher.Constraint("Coincident", 32, 2, 33, 1))
sketch12.addConstraint(Sketcher.Constraint("Coincident", 33, 2, 34, 1))
sketch12.addConstraint(Sketcher.Constraint("Coincident", 34, 2, 35, 1))
sketch12.addConstraint(Sketcher.Constraint("Coincident", 35, 2, 30, 1))
sketch12.addConstraint(Sketcher.Constraint("Coincident", 36, 2, 37, 1))
sketch12.addConstraint(Sketcher.Constraint("Coincident", 37, 2, 38, 1))
sketch12.addConstraint(Sketcher.Constraint("Coincident", 38, 2, 39, 1))
sketch12.addConstraint(Sketcher.Constraint("Coincident", 39, 2, 40, 1))
sketch12.addConstraint(Sketcher.Constraint("Coincident", 40, 2, 41, 1))
sketch12.addConstraint(Sketcher.Constraint("Coincident", 41, 2, 36, 1))
sketch12.addConstraint(Sketcher.Constraint("Coincident", 42, 2, 43, 1))
sketch12.addConstraint(Sketcher.Constraint("Coincident", 43, 2, 44, 1))
sketch12.addConstraint(Sketcher.Constraint("Coincident", 44, 2, 45, 1))
sketch12.addConstraint(Sketcher.Constraint("Coincident", 45, 2, 46, 1))
sketch12.addConstraint(Sketcher.Constraint("Coincident", 46, 2, 47, 1))
sketch12.addConstraint(Sketcher.Constraint("Coincident", 47, 2, 42, 1))
sketch12.addConstraint(Sketcher.Constraint("Horizontal", 0))
sketch12.addConstraint(Sketcher.Constraint("Horizontal", 3))
sketch12.addConstraint(Sketcher.Constraint("Horizontal", 6))
sketch12.addConstraint(Sketcher.Constraint("Horizontal", 9))
sketch12.addConstraint(Sketcher.Constraint("Horizontal", 12))
sketch12.addConstraint(Sketcher.Constraint("Horizontal", 15))
sketch12.addConstraint(Sketcher.Constraint("Horizontal", 18))
sketch12.addConstraint(Sketcher.Constraint("Horizontal", 21))
sketch12.addConstraint(Sketcher.Constraint("Horizontal", 24))
sketch12.addConstraint(Sketcher.Constraint("Horizontal", 27))
sketch12.addConstraint(Sketcher.Constraint("Horizontal", 30))
sketch12.addConstraint(Sketcher.Constraint("Horizontal", 33))
sketch12.addConstraint(Sketcher.Constraint("Horizontal", 36))
sketch12.addConstraint(Sketcher.Constraint("Horizontal", 39))
sketch12.addConstraint(Sketcher.Constraint("Horizontal", 42))
sketch12.addConstraint(Sketcher.Constraint("Horizontal", 45))
sketch12.addConstraint(Sketcher.Constraint("Symmetric", 14, 2, 24, 2, -1))
sketch12.addConstraint(Sketcher.Constraint("Symmetric", 13, 2, 25, 2, -1))
sketch12.addConstraint(Sketcher.Constraint("Symmetric", 12, 2, 26, 2, -1))
sketch12.addConstraint(Sketcher.Constraint("Symmetric", 16, 2, 28, 2, -1))
sketch12.addConstraint(Sketcher.Constraint("Symmetric", 20, 2, 30, 2, -1))
sketch12.addConstraint(Sketcher.Constraint("Symmetric", 19, 2, 31, 2, -1))
sketch12.addConstraint(Sketcher.Constraint("Symmetric", 18, 2, 32, 2, -1))
sketch12.addConstraint(Sketcher.Constraint("Symmetric", 22, 2, 34, 2, -1))
sketch12.addConstraint(Sketcher.Constraint("Symmetric", 2, 2, 36, 2, -1))
sketch12.addConstraint(Sketcher.Constraint("Symmetric", 1, 2, 37, 2, -1))
sketch12.addConstraint(Sketcher.Constraint("Symmetric", 0, 2, 38, 2, -1))
sketch12.addConstraint(Sketcher.Constraint("Symmetric", 4, 2, 40, 2, -1))
sketch12.addConstraint(Sketcher.Constraint("Symmetric", 8, 2, 42, 2, -1))
sketch12.addConstraint(Sketcher.Constraint("Symmetric", 7, 2, 43, 2, -1))
sketch12.addConstraint(Sketcher.Constraint("Symmetric", 6, 2, 44, 2, -1))
sketch12.addConstraint(Sketcher.Constraint("Symmetric", 10, 2, 46, 2, -1))
sketch12.addConstraint(Sketcher.Constraint("Parallel", 1, 4))
sketch12.addConstraint(Sketcher.Constraint("Parallel", 2, 5))
sketch12.addConstraint(Sketcher.Constraint("Parallel", 5, 7))
sketch12.addConstraint(Sketcher.Constraint("Parallel", 4, 8))
sketch12.addConstraint(Sketcher.Constraint("Parallel", 7, 10))
sketch12.addConstraint(Sketcher.Constraint("Parallel", 8, 11))
sketch12.addConstraint(Sketcher.Constraint("Parallel", 11, 13))
sketch12.addConstraint(Sketcher.Constraint("Parallel", 10, 14))
sketch12.addConstraint(Sketcher.Constraint("Parallel", 13, 16))
sketch12.addConstraint(Sketcher.Constraint("Parallel", 14, 17))
sketch12.addConstraint(Sketcher.Constraint("Parallel", 17, 19))
sketch12.addConstraint(Sketcher.Constraint("Parallel", 16, 20))
sketch12.addConstraint(Sketcher.Constraint("Parallel", 19, 22))
sketch12.addConstraint(Sketcher.Constraint("Parallel", 20, 23))
sketch12.addConstraint(Sketcher.Constraint("Parallel", 23, 25))
sketch12.addConstraint(Sketcher.Constraint("Parallel", 25, 28))
sketch12.addConstraint(Sketcher.Constraint("Parallel", 26, 29))
sketch12.addConstraint(Sketcher.Constraint("Parallel", 31, 34))
sketch12.addConstraint(Sketcher.Constraint("Parallel", 32, 35))
sketch12.addConstraint(Sketcher.Constraint("Parallel", 37, 40))
sketch12.addConstraint(Sketcher.Constraint("Parallel", 38, 41))
sketch12.addConstraint(Sketcher.Constraint("Parallel", 43, 46))
sketch12.addConstraint(Sketcher.Constraint("Parallel", 44, 47))
sketch12.addConstraint(Sketcher.Constraint("Horizontal", 1, 2, 4, 2))
sketch12.addConstraint(Sketcher.Constraint("Horizontal", 4, 2, 7, 2))
sketch12.addConstraint(Sketcher.Constraint("Horizontal", 7, 2, 10, 2))
sketch12.addConstraint(Sketcher.Constraint("Horizontal", 13, 2, 16, 2))
sketch12.addConstraint(Sketcher.Constraint("Horizontal", 16, 2, 19, 2))
sketch12.addConstraint(Sketcher.Constraint("Horizontal", 19, 2, 22, 2))
sketch12.addConstraint(Sketcher.Constraint("Vertical", 0, 2, 2, 2))
sketch12.addConstraint(Sketcher.Constraint("Vertical", 6, 2, 8, 2))
sketch12.addConstraint(Sketcher.Constraint("Vertical", 2, 2, 12, 2))
sketch12.addConstraint(Sketcher.Constraint("Vertical", 1, 2, 13, 2))
sketch12.addConstraint(Sketcher.Constraint("Vertical", 12, 2, 14, 2))
sketch12.addConstraint(Sketcher.Constraint("Vertical", 5, 2, 15, 2))
sketch12.addConstraint(Sketcher.Constraint("Vertical", 8, 2, 18, 2))
sketch12.addConstraint(Sketcher.Constraint("Vertical", 7, 2, 19, 2))
sketch12.addConstraint(Sketcher.Constraint("Vertical", 18, 2, 20, 2))
sketch12.addConstraint(Sketcher.Constraint("Vertical", 11, 2, 21, 2))
sketch12.addConstraint(Sketcher.Constraint("Angle", 1, Q("-120 deg")))
sketch12.addConstraint(Sketcher.Constraint("DistanceY", -1, 1, 1, 2, Q("36 mm")))
sketch12.addConstraint(Sketcher.Constraint("DistanceY", -1, 1, 13, 2, Q("6.7 mm")))
sketch12.addConstraint(Sketcher.Constraint("DistanceY", 6, 2, 5, 2, Q("1.5 mm")))
sketch12.addConstraint(Sketcher.Constraint("DistanceX", 0, 2, 0, 1, Q("4.966475 mm")))
sketch12.addConstraint(Sketcher.Constraint("DistanceX", 6, 1, 6, 2, Q("3.234424 mm")))
sketch12.addConstraint(Sketcher.Constraint("DistanceX", 1, 2, 4, 2, Q("9.93295 mm")))
sketch12.addConstraint(Sketcher.Constraint("DistanceX", 0, 2, 6, 2, Q("4.10045 mm")))
sketch12.addConstraint(Sketcher.Constraint("DistanceX", -1, 1, 0, 2, Q("20.016762 mm")))
pad7 = doc.addObject("PartDesign::Pad", "Pad006")
body.addObject(pad7)
pad7.Profile = sketch12
pad7.Length = 2

# Sketch on XZ plane
sketch13 = doc.addObject("Sketcher::SketchObject", "Sketch012")
body.addObject(sketch13)
sketch13.AttachmentSupport = (doc.XZ_Plane, [""])
sketch13.MapMode = "FlatFace"
sketch13.addGeometry(Part.LineSegment(V(-29, -40, 0), V(-29, -46, 0)), False)
sketch13.addGeometry(Part.LineSegment(V(-29, -46, 0), V(29, -46, 0)), False)
sketch13.addGeometry(Part.LineSegment(V(29, -46, 0), V(29, -40, 0)), False)
sketch13.addGeometry(Part.LineSegment(V(29, -40, 0), V(-29, -40, 0)), False)
sketch13.addGeometry(Part.LineSegment(V(-29, 54, 0), V(-29, 40, 0)), False)
sketch13.addGeometry(Part.LineSegment(V(-29, 40, 0), V(29, 40, 0)), False)
sketch13.addGeometry(Part.LineSegment(V(29, 40, 0), V(29, 54, 0)), False)
sketch13.addGeometry(Part.LineSegment(V(29, 54, 0), V(-29, 54, 0)), False)
sketch13.addConstraint(Sketcher.Constraint("Coincident", 0, 2, 1, 1))
sketch13.addConstraint(Sketcher.Constraint("Coincident", 1, 2, 2, 1))
sketch13.addConstraint(Sketcher.Constraint("Coincident", 2, 2, 3, 1))
sketch13.addConstraint(Sketcher.Constraint("Coincident", 3, 2, 0, 1))
sketch13.addConstraint(Sketcher.Constraint("Coincident", 4, 2, 5, 1))
sketch13.addConstraint(Sketcher.Constraint("Coincident", 5, 2, 6, 1))
sketch13.addConstraint(Sketcher.Constraint("Coincident", 6, 2, 7, 1))
sketch13.addConstraint(Sketcher.Constraint("Coincident", 7, 2, 4, 1))
sketch13.addConstraint(Sketcher.Constraint("Vertical", 0))
sketch13.addConstraint(Sketcher.Constraint("Horizontal", 1))
sketch13.addConstraint(Sketcher.Constraint("Vertical", 2))
sketch13.addConstraint(Sketcher.Constraint("Horizontal", 3))
sketch13.addConstraint(Sketcher.Constraint("Vertical", 4))
sketch13.addConstraint(Sketcher.Constraint("Horizontal", 5))
sketch13.addConstraint(Sketcher.Constraint("Vertical", 6))
sketch13.addConstraint(Sketcher.Constraint("Horizontal", 7))
sketch13.addConstraint(Sketcher.Constraint("Symmetric", 2, 2, 4, 2, -1, 1))
sketch13.addConstraint(Sketcher.Constraint("Vertical", 3, 2, 4, 2))
sketch13.addConstraint(Sketcher.Constraint("Vertical", 2, 2, 5, 2))
sketch13.addConstraint(Sketcher.Constraint("DistanceX", 1, 1, 1, 2, Q("58 mm")))
sketch13.addConstraint(Sketcher.Constraint("DistanceY", 2, 2, -1, 1, Q("40 mm")))
sketch13.addConstraint(Sketcher.Constraint("DistanceY", 0, 2, 0, 1, Q("5.571501 mm")))
sketch13.addConstraint(Sketcher.Constraint("DistanceY", 4, 2, 4, 1, Q("14.101029 mm")))
pocket6 = doc.addObject("PartDesign::Pocket", "Pocket005")
body.addObject(pocket6)
pocket6.Profile = sketch13
pocket6.Type = "ThroughAll"

# Sketch on XZ plane
sketch14 = doc.addObject("Sketcher::SketchObject", "Sketch013")
body.addObject(sketch14)
sketch14.AttachmentSupport = (doc.XZ_Plane, [""])
sketch14.MapMode = "FlatFace"
sketch14.AttachmentOffset = App.Placement(V(0, 0, -20), App.Rotation())
sketch14.addGeometry(Part.LineSegment(V(-48, -40, 0), V(-48, -10, 0)), False)
sketch14.addGeometry(Part.LineSegment(V(-48, -10, 0), V(48, -10, 0)), False)
sketch14.addGeometry(Part.LineSegment(V(48, -10, 0), V(48, -40, 0)), False)
sketch14.addGeometry(Part.LineSegment(V(48, -40, 0), V(-48, -40, 0)), False)
sketch14.addGeometry(Part.LineSegment(V(-48, 10, 0), V(-48, 40, 0)), False)
sketch14.addGeometry(Part.LineSegment(V(-48, 40, 0), V(48, 40, 0)), False)
sketch14.addGeometry(Part.LineSegment(V(48, 40, 0), V(48, 10, 0)), False)
sketch14.addGeometry(Part.LineSegment(V(48, 10, 0), V(-48, 10, 0)), False)
sketch14.addConstraint(Sketcher.Constraint("Coincident", 0, 2, 1, 1))
sketch14.addConstraint(Sketcher.Constraint("Coincident", 1, 2, 2, 1))
sketch14.addConstraint(Sketcher.Constraint("Coincident", 2, 2, 3, 1))
sketch14.addConstraint(Sketcher.Constraint("Coincident", 3, 2, 0, 1))
sketch14.addConstraint(Sketcher.Constraint("Coincident", 4, 2, 5, 1))
sketch14.addConstraint(Sketcher.Constraint("Coincident", 5, 2, 6, 1))
sketch14.addConstraint(Sketcher.Constraint("Coincident", 6, 2, 7, 1))
sketch14.addConstraint(Sketcher.Constraint("Coincident", 7, 2, 4, 1))
sketch14.addConstraint(Sketcher.Constraint("Vertical", 0))
sketch14.addConstraint(Sketcher.Constraint("Horizontal", 1))
sketch14.addConstraint(Sketcher.Constraint("Vertical", 2))
sketch14.addConstraint(Sketcher.Constraint("Horizontal", 3))
sketch14.addConstraint(Sketcher.Constraint("Vertical", 4))
sketch14.addConstraint(Sketcher.Constraint("Horizontal", 5))
sketch14.addConstraint(Sketcher.Constraint("Vertical", 6))
sketch14.addConstraint(Sketcher.Constraint("Horizontal", 7))
sketch14.addConstraint(Sketcher.Constraint("Symmetric", 2, 2, 4, 2, -1, 1))
sketch14.addConstraint(Sketcher.Constraint("Symmetric", 0, 2, 6, 2, -1, 1))
sketch14.addConstraint(Sketcher.Constraint("Vertical", 3, 2, 4, 2))
sketch14.addConstraint(Sketcher.Constraint("DistanceY", 0, 1, 0, 2, Q("30 mm")))
sketch14.addConstraint(Sketcher.Constraint("DistanceX", 1, 1, 1, 2, Q("96.7 mm")))
sketch14.addConstraint(Sketcher.Constraint("DistanceY", 0, 2, -1, 1, Q("10 mm")))
pocket7 = doc.addObject("PartDesign::Pocket", "Pocket006")
body.addObject(pocket7)
pocket7.Profile = sketch14
pocket7.Type = "ThroughAll"
pocket7.Reversed = True

# Sketch on YZ plane
sketch15 = doc.addObject("Sketcher::SketchObject", "Sketch014")
body.addObject(sketch15)
sketch15.AttachmentSupport = (doc.YZ_Plane, [""])
sketch15.MapMode = "FlatFace"
sketch15.AttachmentOffset = App.Placement(V(0, 0, -4), App.Rotation())
sketch15.addGeometry(Part.LineSegment(V(4, -10, 0), V(1.5, -10, 0)), False)
sketch15.addGeometry(Part.LineSegment(V(1.5, -10, 0), V(1.5, -7, 0)), False)
sketch15.addGeometry(Part.LineSegment(V(1.5, -7, 0), V(3.3, -7.8, 0)), False)
sketch15.addGeometry(Part.ArcOfCircle(Part.Circle(V(3.5, -7.4, 0), V(0, 0, 1), 0.5), math.radians(-115), math.radians(0)), False)
sketch15.addGeometry(Part.LineSegment(V(4, -7.4, 0), V(4, -10, 0)), False)
sketch15.addGeometry(Part.LineSegment(V(1.5, 3, 0), V(3.3, 2.2, 0)), False)
sketch15.addGeometry(Part.ArcOfCircle(Part.Circle(V(3.5, 2.6, 0), V(0, 0, 1), 0.5), math.radians(-115), math.radians(0)), False)
sketch15.addGeometry(Part.LineSegment(V(4, 2.6, 0), V(4, -2.6, 0)), False)
sketch15.addGeometry(Part.ArcOfCircle(Part.Circle(V(3.5, -2.6, 0), V(0, 0, 1), 0.5), math.radians(0), math.radians(115)), False)
sketch15.addGeometry(Part.LineSegment(V(3.3, -2.2, 0), V(1.5, -3, 0)), False)
sketch15.addGeometry(Part.LineSegment(V(1.5, -3, 0), V(1.5, 3, 0)), False)
sketch15.addGeometry(Part.LineSegment(V(1.5, 7, 0), V(1.5, 10, 0)), False)
sketch15.addGeometry(Part.LineSegment(V(1.5, 10, 0), V(4, 10, 0)), False)
sketch15.addGeometry(Part.LineSegment(V(4, 10, 0), V(4, 7.4, 0)), False)
sketch15.addGeometry(Part.ArcOfCircle(Part.Circle(V(3.5, 7.4, 0), V(0, 0, 1), 0.5), math.radians(0), math.radians(115)), False)
sketch15.addGeometry(Part.LineSegment(V(3.3, 7.8, 0), V(1.5, 7, 0)), False)
sketch15.addConstraint(Sketcher.Constraint("Coincident", 0, 2, 1, 1))
sketch15.addConstraint(Sketcher.Constraint("Coincident", 1, 2, 2, 1))
sketch15.addConstraint(Sketcher.Constraint("Tangent", 2, 2, 3, 1))
sketch15.addConstraint(Sketcher.Constraint("Tangent", 3, 2, 4, 1))
sketch15.addConstraint(Sketcher.Constraint("Coincident", 4, 2, 0, 1))
sketch15.addConstraint(Sketcher.Constraint("Tangent", 5, 2, 6, 1))
sketch15.addConstraint(Sketcher.Constraint("Tangent", 6, 2, 7, 1))
sketch15.addConstraint(Sketcher.Constraint("Tangent", 7, 2, 8, 1))
sketch15.addConstraint(Sketcher.Constraint("Tangent", 8, 2, 9, 1))
sketch15.addConstraint(Sketcher.Constraint("Coincident", 9, 2, 10, 1))
sketch15.addConstraint(Sketcher.Constraint("Coincident", 10, 2, 5, 1))
sketch15.addConstraint(Sketcher.Constraint("Coincident", 11, 2, 12, 1))
sketch15.addConstraint(Sketcher.Constraint("Coincident", 12, 2, 13, 1))
sketch15.addConstraint(Sketcher.Constraint("Tangent", 13, 2, 14, 1))
sketch15.addConstraint(Sketcher.Constraint("Tangent", 14, 2, 15, 1))
sketch15.addConstraint(Sketcher.Constraint("Coincident", 15, 2, 11, 1))
sketch15.addConstraint(Sketcher.Constraint("Horizontal", 0))
sketch15.addConstraint(Sketcher.Constraint("Vertical", 1))
sketch15.addConstraint(Sketcher.Constraint("Vertical", 4))
sketch15.addConstraint(Sketcher.Constraint("Vertical", 7))
sketch15.addConstraint(Sketcher.Constraint("Vertical", 10))
sketch15.addConstraint(Sketcher.Constraint("Vertical", 11))
sketch15.addConstraint(Sketcher.Constraint("Horizontal", 12))
sketch15.addConstraint(Sketcher.Constraint("Vertical", 13))
sketch15.addConstraint(Sketcher.Constraint("Equal", 3, 6))
sketch15.addConstraint(Sketcher.Constraint("Equal", 6, 8))
sketch15.addConstraint(Sketcher.Constraint("Equal", 8, 14))
sketch15.addConstraint(Sketcher.Constraint("Symmetric", 3, 3, 14, 3, -1))
sketch15.addConstraint(Sketcher.Constraint("Symmetric", 5, 2, 8, 2, -1))
sketch15.addConstraint(Sketcher.Constraint("Symmetric", 0, 2, 11, 2, -1))
sketch15.addConstraint(Sketcher.Constraint("Parallel", 2, 5))
sketch15.addConstraint(Sketcher.Constraint("Parallel", 9, 15))
sketch15.addConstraint(Sketcher.Constraint("Vertical", 3, 3, 6, 3))
sketch15.addConstraint(Sketcher.Constraint("Vertical", 1, 2, 9, 2))
sketch15.addConstraint(Sketcher.Constraint("Radius", 3, Q("0.5 mm")))
sketch15.addConstraint(Sketcher.Constraint("DistanceY", 1, 1, 1, 2, Q("3 mm")))
sketch15.addConstraint(Sketcher.Constraint("DistanceY", 10, 1, 10, 2, Q("6 mm")))
sketch15.addConstraint(Sketcher.Constraint("Angle", 2, Q("-25 deg")))
sketch15.addConstraint(Sketcher.Constraint("DistanceX", 0, 2, 0, 1, Q("2.5 mm")))
sketch15.addConstraint(Sketcher.Constraint("DistanceY", 0, 2, -1, 1, Q("10 mm")))
sketch15.addConstraint(Sketcher.Constraint("DistanceX", -1, 1, 3, 2, Q("4 mm")))
pocket8 = doc.addObject("PartDesign::Pocket", "Pocket007")
body.addObject(pocket8)
pocket8.Profile = sketch15
pocket8.Length = 16
pocket8.Reversed = True

doc.recompute()
